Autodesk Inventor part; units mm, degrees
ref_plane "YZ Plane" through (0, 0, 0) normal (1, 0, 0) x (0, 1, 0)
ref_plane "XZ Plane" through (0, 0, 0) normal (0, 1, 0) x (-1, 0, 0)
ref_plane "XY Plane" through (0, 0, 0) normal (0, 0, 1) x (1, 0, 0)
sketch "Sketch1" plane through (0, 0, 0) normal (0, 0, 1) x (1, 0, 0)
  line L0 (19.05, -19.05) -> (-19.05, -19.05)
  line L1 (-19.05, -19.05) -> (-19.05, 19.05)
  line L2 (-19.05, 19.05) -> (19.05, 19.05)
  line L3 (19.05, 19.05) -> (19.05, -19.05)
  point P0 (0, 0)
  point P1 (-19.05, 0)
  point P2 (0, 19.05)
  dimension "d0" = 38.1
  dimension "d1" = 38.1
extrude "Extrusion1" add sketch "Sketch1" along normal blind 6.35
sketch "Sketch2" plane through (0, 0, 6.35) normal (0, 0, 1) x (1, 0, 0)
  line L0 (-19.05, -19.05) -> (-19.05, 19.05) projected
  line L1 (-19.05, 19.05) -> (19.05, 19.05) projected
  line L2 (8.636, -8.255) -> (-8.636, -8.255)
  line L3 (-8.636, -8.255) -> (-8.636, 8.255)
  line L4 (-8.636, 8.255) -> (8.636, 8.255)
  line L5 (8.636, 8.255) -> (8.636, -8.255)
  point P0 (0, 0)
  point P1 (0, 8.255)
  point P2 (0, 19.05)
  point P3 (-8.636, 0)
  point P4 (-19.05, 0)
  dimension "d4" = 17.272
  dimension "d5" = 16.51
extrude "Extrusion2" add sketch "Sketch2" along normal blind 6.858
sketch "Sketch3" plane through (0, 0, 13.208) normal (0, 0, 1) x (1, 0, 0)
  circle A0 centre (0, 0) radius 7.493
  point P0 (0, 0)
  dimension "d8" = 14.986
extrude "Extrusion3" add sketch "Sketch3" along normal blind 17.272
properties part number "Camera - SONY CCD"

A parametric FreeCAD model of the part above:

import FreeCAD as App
import Part
import Sketcher
from FreeCAD import Vector
Q = App.Units.Quantity

doc = App.newDocument("Part")
body = doc.addObject("PartDesign::Body", "Body")

sketch1 = body.newObject("Sketcher::SketchObject", "Sketch")
sketch1.AttachmentSupport = (doc.getObject("XY_Plane"), [""])
sketch1.MapMode = "FlatFace"
sketch1.addGeometry(Part.LineSegment(Vector(-19.05, -19.05, 0), Vector(19.05, -19.05, 0)), False)
sketch1.addGeometry(Part.LineSegment(Vector(19.05, -19.05, 0), Vector(19.05, 19.05, 0)), False)
sketch1.addGeometry(Part.LineSegment(Vector(19.05, 19.05, 0), Vector(-19.05, 19.05, 0)), False)
sketch1.addGeometry(Part.LineSegment(Vector(-19.05, 19.05, 0), Vector(-19.05, -19.05, 0)), False)
sketch1.addConstraint(Sketcher.Constraint("Coincident", 0, 2, 1, 1))
sketch1.addConstraint(Sketcher.Constraint("Coincident", 1, 2, 2, 1))
sketch1.addConstraint(Sketcher.Constraint("Coincident", 2, 2, 3, 1))
sketch1.addConstraint(Sketcher.Constraint("Coincident", 3, 2, 0, 1))
sketch1.addConstraint(Sketcher.Constraint("Horizontal", 0))
sketch1.addConstraint(Sketcher.Constraint("Vertical", 1))
sketch1.addConstraint(Sketcher.Constraint("Horizontal", 2))
sketch1.addConstraint(Sketcher.Constraint("Vertical", 3))
sketch1.addConstraint(Sketcher.Constraint("Symmetric", 0, 2, 2, 2, -1, 1))
sketch1.addConstraint(Sketcher.Constraint("Equal", 2, 1))
sketch1.addConstraint(Sketcher.Constraint("DistanceX", 0, 1, 0, 2, Q("1.5 in")))
pad1 = body.newObject("PartDesign::Pad", "Pad")
pad1.Profile = sketch1
pad1.Length = Q("0.25 in")

sketch2 = body.newObject("Sketcher::SketchObject", "Sketch001")
sketch2.AttachmentSupport = (doc.getObject("XY_Plane"), [""])
sketch2.MapMode = "FlatFace"
sketch2.AttachmentOffset = App.Placement(Vector(0, 0, 0.25 * 25.4), App.Rotation())
sketch2.addGeometry(Part.LineSegment(Vector(-8.636, -8.255, 0), Vector(8.636, -8.255, 0)), False)
sketch2.addGeometry(Part.LineSegment(Vector(8.636, -8.255, 0), Vector(8.636, 8.255, 0)), False)
sketch2.addGeometry(Part.LineSegment(Vector(8.636, 8.255, 0), Vector(-8.636, 8.255, 0)), False)
sketch2.addGeometry(Part.LineSegment(Vector(-8.636, 8.255, 0), Vector(-8.636, -8.255, 0)), False)
sketch2.addConstraint(Sketcher.Constraint("Coincident", 0, 2, 1, 1))
sketch2.addConstraint(Sketcher.Constraint("Coincident", 1, 2, 2, 1))
sketch2.addConstraint(Sketcher.Constraint("Coincident", 2, 2, 3, 1))
sketch2.addConstraint(Sketcher.Constraint("Coincident", 3, 2, 0, 1))
sketch2.addConstraint(Sketcher.Constraint("Horizontal", 0))
sketch2.addConstraint(Sketcher.Constraint("Vertical", 1))
sketch2.addConstraint(Sketcher.Constraint("Horizontal", 2))
sketch2.addConstraint(Sketcher.Constraint("Vertical", 3))
sketch2.addConstraint(Sketcher.Constraint("Symmetric", 0, 2, 2, 2, -1, 1))
sketch2.addConstraint(Sketcher.Constraint("DistanceX", 0, 1, 0, 2, Q("0.68 in")))
sketch2.addConstraint(Sketcher.Constraint("DistanceY", 1, 1, 1, 2, Q("0.65 in")))
pad2 = body.newObject("PartDesign::Pad", "Pad001")
pad2.Profile = sketch2
pad2.Length = Q("0.27 in")

sketch3 = body.newObject("Sketcher::SketchObject", "Sketch002")
sketch3.AttachmentSupport = (doc.getObject("XY_Plane"), [""])
sketch3.MapMode = "FlatFace"
sketch3.AttachmentOffset = App.Placement(Vector(0, 0, 0.52 * 25.4), App.Rotation())
sketch3.addGeometry(Part.Circle(Vector(0, 0, 0), Vector(0, 0, 1), 7.493), False)
sketch3.addConstraint(Sketcher.Constraint("Coincident", 0, 3, -1, 1))
sketch3.addConstraint(Sketcher.Constraint("Diameter", 0, Q("0.59 in")))
pad3 = body.newObject("PartDesign::Pad", "Pad002")
pad3.Profile = sketch3
pad3.Length = Q("0.68 in")

doc.recompute()
